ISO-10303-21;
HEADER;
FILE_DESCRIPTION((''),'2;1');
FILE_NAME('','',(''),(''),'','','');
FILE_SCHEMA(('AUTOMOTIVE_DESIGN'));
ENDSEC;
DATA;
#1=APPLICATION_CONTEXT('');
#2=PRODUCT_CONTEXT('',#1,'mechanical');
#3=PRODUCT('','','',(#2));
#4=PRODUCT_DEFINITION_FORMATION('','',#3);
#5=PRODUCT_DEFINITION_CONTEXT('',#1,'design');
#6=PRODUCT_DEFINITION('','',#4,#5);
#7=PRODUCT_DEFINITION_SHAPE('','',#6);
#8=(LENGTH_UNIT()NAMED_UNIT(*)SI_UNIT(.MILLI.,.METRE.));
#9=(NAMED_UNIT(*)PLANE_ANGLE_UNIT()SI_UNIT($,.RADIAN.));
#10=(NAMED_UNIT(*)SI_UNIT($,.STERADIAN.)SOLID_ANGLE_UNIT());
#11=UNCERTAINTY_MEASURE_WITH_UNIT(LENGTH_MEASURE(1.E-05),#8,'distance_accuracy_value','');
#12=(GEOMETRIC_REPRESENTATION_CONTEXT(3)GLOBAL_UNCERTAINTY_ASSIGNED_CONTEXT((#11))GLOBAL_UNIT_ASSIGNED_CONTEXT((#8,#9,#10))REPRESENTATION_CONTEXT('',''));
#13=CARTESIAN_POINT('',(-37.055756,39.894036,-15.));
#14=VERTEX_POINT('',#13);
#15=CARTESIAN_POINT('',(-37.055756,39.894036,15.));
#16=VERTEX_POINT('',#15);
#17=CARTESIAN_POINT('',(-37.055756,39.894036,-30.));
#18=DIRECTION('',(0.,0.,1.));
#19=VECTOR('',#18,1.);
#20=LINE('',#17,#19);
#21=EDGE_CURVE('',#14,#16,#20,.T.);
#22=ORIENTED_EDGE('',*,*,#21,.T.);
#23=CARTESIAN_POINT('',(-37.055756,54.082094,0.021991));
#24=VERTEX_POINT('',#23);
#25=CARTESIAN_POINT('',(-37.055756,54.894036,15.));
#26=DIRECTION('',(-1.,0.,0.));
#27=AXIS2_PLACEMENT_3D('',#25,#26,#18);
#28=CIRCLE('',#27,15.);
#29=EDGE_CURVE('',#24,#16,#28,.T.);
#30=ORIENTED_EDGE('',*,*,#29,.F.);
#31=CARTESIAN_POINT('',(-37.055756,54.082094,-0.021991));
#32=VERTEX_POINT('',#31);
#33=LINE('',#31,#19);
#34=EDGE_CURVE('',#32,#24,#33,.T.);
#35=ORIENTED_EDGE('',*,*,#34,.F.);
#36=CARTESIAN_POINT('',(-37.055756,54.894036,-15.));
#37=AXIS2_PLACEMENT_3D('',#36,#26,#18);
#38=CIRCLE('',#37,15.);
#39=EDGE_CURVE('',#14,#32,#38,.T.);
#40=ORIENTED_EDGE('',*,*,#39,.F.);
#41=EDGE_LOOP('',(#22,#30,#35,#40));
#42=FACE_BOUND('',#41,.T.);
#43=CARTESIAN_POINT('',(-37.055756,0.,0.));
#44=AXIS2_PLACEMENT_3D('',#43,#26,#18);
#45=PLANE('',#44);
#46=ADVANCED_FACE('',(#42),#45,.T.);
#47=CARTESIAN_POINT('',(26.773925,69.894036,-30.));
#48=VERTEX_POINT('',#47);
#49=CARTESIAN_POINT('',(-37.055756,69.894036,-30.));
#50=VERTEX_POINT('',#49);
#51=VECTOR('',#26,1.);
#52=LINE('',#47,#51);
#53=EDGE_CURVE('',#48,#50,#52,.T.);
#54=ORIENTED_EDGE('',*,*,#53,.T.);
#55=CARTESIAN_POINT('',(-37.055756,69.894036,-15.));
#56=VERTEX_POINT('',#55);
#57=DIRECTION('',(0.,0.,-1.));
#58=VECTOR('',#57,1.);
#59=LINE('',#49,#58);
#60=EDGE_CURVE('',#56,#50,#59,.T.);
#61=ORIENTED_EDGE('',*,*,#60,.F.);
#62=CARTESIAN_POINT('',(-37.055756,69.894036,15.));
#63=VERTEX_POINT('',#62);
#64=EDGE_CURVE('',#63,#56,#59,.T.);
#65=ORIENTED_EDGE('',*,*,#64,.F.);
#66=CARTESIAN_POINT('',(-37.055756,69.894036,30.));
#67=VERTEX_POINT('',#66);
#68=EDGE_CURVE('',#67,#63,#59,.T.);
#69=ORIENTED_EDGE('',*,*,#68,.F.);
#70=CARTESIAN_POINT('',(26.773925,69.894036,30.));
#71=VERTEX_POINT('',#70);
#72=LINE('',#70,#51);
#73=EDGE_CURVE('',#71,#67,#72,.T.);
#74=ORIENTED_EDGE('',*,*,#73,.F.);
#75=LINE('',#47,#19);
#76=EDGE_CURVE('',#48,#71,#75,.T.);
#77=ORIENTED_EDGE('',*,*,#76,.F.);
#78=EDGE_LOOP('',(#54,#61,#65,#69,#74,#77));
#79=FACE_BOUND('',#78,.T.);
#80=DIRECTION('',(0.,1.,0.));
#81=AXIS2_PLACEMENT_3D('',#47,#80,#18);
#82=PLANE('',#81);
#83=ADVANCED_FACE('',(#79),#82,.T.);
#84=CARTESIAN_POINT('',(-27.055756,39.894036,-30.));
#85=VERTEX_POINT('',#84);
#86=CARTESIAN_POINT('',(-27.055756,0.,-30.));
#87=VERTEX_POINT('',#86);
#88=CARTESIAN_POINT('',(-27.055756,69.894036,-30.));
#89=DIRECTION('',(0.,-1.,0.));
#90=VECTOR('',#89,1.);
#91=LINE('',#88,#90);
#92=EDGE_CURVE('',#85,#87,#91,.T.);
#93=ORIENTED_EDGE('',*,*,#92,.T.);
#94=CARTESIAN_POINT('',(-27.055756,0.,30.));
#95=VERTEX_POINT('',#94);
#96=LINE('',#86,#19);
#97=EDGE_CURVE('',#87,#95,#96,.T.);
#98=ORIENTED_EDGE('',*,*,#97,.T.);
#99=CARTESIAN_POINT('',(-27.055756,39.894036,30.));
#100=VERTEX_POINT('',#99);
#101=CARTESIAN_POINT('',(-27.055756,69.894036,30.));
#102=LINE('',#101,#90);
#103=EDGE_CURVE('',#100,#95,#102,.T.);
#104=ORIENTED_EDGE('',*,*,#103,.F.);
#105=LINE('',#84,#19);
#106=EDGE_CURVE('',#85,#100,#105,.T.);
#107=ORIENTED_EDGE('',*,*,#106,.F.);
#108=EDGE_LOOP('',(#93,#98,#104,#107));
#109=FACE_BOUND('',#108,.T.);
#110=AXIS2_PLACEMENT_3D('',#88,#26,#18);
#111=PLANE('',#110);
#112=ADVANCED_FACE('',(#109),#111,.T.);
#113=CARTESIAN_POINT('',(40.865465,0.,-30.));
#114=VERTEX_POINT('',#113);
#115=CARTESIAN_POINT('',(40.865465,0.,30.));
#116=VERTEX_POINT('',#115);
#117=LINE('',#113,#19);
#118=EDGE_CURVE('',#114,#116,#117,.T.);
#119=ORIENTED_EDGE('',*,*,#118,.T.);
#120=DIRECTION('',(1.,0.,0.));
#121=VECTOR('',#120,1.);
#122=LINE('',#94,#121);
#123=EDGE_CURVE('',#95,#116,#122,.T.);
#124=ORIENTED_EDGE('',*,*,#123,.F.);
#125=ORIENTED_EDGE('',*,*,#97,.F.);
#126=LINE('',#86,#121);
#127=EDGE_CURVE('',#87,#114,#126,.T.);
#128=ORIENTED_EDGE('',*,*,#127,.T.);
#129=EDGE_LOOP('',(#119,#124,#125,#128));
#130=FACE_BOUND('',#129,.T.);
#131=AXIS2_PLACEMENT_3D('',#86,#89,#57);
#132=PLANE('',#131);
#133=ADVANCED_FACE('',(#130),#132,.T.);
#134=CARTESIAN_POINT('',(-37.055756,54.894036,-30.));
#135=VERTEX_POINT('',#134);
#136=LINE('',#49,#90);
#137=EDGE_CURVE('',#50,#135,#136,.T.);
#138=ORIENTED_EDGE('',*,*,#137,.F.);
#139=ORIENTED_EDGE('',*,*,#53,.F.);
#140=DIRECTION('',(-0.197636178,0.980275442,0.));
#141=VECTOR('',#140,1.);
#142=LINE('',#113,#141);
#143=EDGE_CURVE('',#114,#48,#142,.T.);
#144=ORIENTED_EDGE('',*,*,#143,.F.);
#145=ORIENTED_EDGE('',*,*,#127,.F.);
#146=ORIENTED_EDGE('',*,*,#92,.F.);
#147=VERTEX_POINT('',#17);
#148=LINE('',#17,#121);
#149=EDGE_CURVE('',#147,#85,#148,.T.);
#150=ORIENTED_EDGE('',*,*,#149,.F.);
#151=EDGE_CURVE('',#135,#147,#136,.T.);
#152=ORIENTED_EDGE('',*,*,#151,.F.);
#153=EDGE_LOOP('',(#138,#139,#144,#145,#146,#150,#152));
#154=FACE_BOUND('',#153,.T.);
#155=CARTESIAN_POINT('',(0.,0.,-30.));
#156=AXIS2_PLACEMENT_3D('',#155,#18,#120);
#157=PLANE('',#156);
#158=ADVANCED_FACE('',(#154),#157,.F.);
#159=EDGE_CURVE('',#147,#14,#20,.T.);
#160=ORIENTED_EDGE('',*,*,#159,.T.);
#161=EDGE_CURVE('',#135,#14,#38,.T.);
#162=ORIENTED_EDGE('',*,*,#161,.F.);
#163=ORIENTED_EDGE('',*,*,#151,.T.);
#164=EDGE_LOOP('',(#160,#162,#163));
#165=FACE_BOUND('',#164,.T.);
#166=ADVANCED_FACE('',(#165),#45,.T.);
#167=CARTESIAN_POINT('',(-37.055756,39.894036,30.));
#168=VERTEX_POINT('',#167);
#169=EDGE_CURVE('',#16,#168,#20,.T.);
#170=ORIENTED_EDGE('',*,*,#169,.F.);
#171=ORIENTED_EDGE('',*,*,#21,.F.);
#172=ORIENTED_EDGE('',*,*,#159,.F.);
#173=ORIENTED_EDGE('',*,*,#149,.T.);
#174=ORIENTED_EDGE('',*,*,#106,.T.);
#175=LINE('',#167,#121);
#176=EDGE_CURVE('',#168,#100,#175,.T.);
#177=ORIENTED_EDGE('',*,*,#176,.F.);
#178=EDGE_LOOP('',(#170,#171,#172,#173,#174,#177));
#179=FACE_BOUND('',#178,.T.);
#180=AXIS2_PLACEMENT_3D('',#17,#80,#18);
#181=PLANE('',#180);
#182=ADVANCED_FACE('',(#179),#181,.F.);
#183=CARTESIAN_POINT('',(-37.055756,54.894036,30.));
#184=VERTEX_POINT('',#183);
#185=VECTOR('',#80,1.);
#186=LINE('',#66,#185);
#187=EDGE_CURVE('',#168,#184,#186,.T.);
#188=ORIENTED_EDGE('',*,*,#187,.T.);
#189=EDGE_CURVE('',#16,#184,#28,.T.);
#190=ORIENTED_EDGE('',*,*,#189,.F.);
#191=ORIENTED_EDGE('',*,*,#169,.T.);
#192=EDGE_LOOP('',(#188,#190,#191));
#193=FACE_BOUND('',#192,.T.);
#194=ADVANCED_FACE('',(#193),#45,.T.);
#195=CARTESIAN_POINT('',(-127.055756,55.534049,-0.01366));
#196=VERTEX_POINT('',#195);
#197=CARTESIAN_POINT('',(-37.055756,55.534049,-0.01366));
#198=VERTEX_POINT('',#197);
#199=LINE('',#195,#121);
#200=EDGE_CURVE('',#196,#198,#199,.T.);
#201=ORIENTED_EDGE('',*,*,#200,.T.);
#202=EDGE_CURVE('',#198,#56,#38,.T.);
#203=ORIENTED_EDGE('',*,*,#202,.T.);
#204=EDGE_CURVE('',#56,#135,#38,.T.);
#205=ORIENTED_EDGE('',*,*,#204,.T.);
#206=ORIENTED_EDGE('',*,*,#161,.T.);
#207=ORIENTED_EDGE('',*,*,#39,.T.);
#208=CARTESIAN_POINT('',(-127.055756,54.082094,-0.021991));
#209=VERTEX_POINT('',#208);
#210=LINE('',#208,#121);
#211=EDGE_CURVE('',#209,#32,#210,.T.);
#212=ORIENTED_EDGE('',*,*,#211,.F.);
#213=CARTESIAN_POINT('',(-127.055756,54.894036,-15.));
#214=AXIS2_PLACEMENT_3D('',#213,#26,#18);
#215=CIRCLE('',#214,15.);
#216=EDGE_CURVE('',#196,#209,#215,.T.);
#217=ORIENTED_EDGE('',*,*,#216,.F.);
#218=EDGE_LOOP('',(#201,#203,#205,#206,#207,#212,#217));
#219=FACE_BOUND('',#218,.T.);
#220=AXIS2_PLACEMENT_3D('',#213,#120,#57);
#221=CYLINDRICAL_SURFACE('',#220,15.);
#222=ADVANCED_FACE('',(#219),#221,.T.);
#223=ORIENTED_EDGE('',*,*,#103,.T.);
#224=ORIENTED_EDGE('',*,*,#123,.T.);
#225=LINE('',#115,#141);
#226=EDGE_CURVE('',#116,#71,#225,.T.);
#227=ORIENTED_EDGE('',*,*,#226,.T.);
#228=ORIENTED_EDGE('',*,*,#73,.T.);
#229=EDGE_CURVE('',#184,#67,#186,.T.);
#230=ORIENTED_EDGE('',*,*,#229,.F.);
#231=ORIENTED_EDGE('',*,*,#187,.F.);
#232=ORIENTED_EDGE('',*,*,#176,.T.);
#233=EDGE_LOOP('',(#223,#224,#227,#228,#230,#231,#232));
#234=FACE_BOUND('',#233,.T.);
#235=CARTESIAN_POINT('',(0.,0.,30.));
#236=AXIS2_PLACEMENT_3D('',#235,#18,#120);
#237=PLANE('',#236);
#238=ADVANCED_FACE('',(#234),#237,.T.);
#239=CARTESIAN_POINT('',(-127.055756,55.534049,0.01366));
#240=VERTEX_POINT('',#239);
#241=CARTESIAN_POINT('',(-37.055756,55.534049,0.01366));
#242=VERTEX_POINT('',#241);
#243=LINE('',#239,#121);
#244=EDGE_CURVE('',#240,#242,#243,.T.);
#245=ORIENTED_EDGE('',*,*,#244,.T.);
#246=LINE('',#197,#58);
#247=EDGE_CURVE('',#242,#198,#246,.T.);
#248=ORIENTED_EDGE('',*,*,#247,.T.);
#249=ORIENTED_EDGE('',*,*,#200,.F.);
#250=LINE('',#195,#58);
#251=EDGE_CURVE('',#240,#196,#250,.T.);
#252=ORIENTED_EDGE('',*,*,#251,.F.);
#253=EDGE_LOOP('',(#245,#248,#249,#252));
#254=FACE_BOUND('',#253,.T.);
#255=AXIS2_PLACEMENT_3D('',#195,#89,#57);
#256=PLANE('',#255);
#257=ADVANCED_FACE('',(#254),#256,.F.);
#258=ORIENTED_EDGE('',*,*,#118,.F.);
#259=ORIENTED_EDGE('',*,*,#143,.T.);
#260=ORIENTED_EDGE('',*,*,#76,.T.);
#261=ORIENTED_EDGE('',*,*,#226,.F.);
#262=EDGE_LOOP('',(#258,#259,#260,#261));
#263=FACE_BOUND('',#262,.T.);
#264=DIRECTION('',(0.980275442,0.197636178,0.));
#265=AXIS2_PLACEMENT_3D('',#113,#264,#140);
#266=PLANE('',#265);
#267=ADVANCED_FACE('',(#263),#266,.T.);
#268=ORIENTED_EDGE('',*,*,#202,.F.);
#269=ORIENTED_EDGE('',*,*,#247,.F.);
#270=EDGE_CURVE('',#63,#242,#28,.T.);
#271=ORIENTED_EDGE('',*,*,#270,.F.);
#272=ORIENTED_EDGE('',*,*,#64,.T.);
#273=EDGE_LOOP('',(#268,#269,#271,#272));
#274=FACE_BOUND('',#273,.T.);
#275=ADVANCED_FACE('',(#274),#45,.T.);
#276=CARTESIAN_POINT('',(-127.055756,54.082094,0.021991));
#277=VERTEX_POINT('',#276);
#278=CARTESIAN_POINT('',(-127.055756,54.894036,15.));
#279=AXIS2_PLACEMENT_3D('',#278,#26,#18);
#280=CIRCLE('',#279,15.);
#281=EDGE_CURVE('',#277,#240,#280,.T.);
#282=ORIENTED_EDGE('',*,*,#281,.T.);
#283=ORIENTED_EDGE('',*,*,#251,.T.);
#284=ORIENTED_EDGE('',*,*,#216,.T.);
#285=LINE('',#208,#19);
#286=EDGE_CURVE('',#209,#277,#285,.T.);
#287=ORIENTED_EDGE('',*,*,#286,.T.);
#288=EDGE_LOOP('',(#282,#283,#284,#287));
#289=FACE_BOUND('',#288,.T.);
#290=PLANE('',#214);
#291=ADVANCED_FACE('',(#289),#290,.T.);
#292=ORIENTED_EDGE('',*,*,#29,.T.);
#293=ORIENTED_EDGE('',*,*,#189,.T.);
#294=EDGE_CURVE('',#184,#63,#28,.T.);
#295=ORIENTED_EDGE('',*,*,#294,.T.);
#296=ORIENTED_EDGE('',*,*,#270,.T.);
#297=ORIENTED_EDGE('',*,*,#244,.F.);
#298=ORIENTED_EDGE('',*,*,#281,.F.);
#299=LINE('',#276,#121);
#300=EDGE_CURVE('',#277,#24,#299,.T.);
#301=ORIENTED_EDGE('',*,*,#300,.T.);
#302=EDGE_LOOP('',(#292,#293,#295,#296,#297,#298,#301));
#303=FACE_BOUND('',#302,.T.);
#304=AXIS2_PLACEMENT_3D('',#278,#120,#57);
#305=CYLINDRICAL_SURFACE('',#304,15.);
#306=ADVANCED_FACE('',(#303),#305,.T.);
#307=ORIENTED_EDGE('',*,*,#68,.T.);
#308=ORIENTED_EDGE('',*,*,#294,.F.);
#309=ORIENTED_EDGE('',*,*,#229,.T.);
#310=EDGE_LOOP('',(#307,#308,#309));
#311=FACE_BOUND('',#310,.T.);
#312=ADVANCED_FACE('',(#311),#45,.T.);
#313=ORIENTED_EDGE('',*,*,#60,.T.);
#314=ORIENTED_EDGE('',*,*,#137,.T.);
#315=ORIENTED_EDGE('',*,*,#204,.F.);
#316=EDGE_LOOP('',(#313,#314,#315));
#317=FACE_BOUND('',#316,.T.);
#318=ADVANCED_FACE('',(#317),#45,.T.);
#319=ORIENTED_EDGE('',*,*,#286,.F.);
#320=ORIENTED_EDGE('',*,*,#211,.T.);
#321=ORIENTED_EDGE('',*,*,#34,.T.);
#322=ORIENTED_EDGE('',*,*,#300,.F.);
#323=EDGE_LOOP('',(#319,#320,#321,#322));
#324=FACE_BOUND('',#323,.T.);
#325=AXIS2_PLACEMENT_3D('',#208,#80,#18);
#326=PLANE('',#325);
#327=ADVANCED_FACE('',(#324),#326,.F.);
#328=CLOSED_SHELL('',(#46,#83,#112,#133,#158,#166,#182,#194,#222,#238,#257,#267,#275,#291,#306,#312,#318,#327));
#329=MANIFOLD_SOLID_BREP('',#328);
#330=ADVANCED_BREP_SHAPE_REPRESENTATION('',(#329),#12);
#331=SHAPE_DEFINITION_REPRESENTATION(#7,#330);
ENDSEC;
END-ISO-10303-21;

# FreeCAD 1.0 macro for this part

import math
import FreeCAD as App
import Part
import Sketcher
from FreeCAD import Vector
Q = App.Units.Quantity

doc = App.newDocument("Part")
body = doc.addObject("PartDesign::Body", "Body")

sketch1 = doc.addObject("Sketcher::SketchObject", "Sketch")
body.addObject(sketch1)
sketch1.AttachmentSupport = (doc.XY_Plane, [""])
sketch1.MapMode = "FlatFace"
sketch1.addGeometry(Part.LineSegment(Vector(-27, 0, 0), Vector(41, 0, 0)), False)
sketch1.addGeometry(Part.LineSegment(Vector(41, 0, 0), Vector(27, 70, 0)), False)
sketch1.addGeometry(Part.LineSegment(Vector(27, 70, 0), Vector(-27, 70, 0)), False)
sketch1.addGeometry(Part.LineSegment(Vector(-27, 70, 0), Vector(-27, 0, 0)), False)
sketch1.addConstraint(Sketcher.Constraint("Coincident", 0, 2, 1, 1))
sketch1.addConstraint(Sketcher.Constraint("Coincident", 1, 2, 2, 1))
sketch1.addConstraint(Sketcher.Constraint("Coincident", 2, 2, 3, 1))
sketch1.addConstraint(Sketcher.Constraint("Coincident", 3, 2, 0, 1))
sketch1.addConstraint(Sketcher.Constraint("Horizontal", 0))
sketch1.addConstraint(Sketcher.Constraint("Horizontal", 2))
sketch1.addConstraint(Sketcher.Constraint("Vertical", 3))
sketch1.addConstraint(Sketcher.Constraint("PointOnObject", 0, 2, -1))
sketch1.addConstraint(Sketcher.Constraint("DistanceX", 0, 1, 0, 2, Q("67.921221 mm")))
sketch1.addConstraint(Sketcher.Constraint("DistanceX", 2, 2, 2, 1, Q("53.829681 mm")))
sketch1.addConstraint(Sketcher.Constraint("DistanceY", 3, 2, 3, 1, Q("69.894036 mm")))
sketch1.addConstraint(Sketcher.Constraint("DistanceX", -1, 1, 0, 2, Q("40.865465 mm")))
pad1 = doc.addObject("PartDesign::Pad", "Pad")
body.addObject(pad1)
pad1.Profile = sketch1
pad1.Type = "TwoLengths"
pad1.Length = 30
pad1.Length2 = 30

sketch2 = doc.addObject("Sketcher::SketchObject", "Sketch001")
body.addObject(sketch2)
sketch2.AttachmentSupport = (doc.YZ_Plane, [""])
sketch2.MapMode = "FlatFace"
sketch2.AttachmentOffset = App.Placement(Vector(0, 0, -27.055756), App.Rotation())
sketch2.addGeometry(Part.LineSegment(Vector(55.534049, 0.01366, 0), Vector(55.534049, -0.01366, 0)), False)
sketch2.addGeometry(Part.ArcOfCircle(Part.Circle(Vector(54.894036, -15, 0), Vector(0, 0, 1), 15), math.radians(93.102906), math.radians(447.554588)), False)
sketch2.addGeometry(Part.LineSegment(Vector(54.082094, -0.021991, 0), Vector(54.082094, 0.021991, 0)), False)
sketch2.addGeometry(Part.ArcOfCircle(Part.Circle(Vector(54.894036, 15, 0), Vector(0, 0, 1), 15), math.radians(-87.554588), math.radians(266.897094)), False)
sketch2.addConstraint(Sketcher.Constraint("Coincident", 0, 2, 1, 2))
sketch2.addConstraint(Sketcher.Constraint("Coincident", 1, 1, 2, 1))
sketch2.addConstraint(Sketcher.Constraint("Coincident", 2, 2, 3, 2))
sketch2.addConstraint(Sketcher.Constraint("Coincident", 3, 1, 0, 1))
sketch2.addConstraint(Sketcher.Constraint("Vertical", 0))
sketch2.addConstraint(Sketcher.Constraint("Vertical", 2))
sketch2.addConstraint(Sketcher.Constraint("Equal", 1, 3))
sketch2.addConstraint(Sketcher.Constraint("Symmetric", 1, 3, 3, 3, -1))
sketch2.addConstraint(Sketcher.Constraint("Radius", 1, Q("15 mm")))
sketch2.addConstraint(Sketcher.Constraint("DistanceY", 1, 3, -1, 1, Q("15 mm")))
sketch2.addConstraint(Sketcher.Constraint("DistanceY", 0, 2, 0, 1, Q("0.02732 mm")))
sketch2.addConstraint(Sketcher.Constraint("DistanceY", 2, 1, 2, 2, Q("0.043982 mm")))
sketch2.addConstraint(Sketcher.Constraint("DistanceX", -1, 1, 0, 2, Q("55.534049 mm")))
pad2 = doc.addObject("PartDesign::Pad", "Pad001")
body.addObject(pad2)
pad2.Profile = sketch2
pad2.Length = 100
pad2.Reversed = True

sketch3 = doc.addObject("Sketcher::SketchObject", "Sketch002")
body.addObject(sketch3)
sketch3.AttachmentSupport = (doc.YZ_Plane, [""])
sketch3.MapMode = "FlatFace"
sketch3.AttachmentOffset = App.Placement(Vector(0, 0, -27.055756), App.Rotation())
sketch3.addGeometry(Part.LineSegment(Vector(70, -30, 0), Vector(40, -30, 0)), False)
sketch3.addGeometry(Part.LineSegment(Vector(40, -30, 0), Vector(40, 30, 0)), False)
sketch3.addGeometry(Part.LineSegment(Vector(40, 30, 0), Vector(70, 30, 0)), False)
sketch3.addGeometry(Part.LineSegment(Vector(70, 30, 0), Vector(70, -30, 0)), False)
sketch3.addConstraint(Sketcher.Constraint("Coincident", 0, 2, 1, 1))
sketch3.addConstraint(Sketcher.Constraint("Coincident", 1, 2, 2, 1))
sketch3.addConstraint(Sketcher.Constraint("Coincident", 2, 2, 3, 1))
sketch3.addConstraint(Sketcher.Constraint("Coincident", 3, 2, 0, 1))
sketch3.addConstraint(Sketcher.Constraint("Horizontal", 0))
sketch3.addConstraint(Sketcher.Constraint("Vertical", 1))
sketch3.addConstraint(Sketcher.Constraint("Horizontal", 2))
sketch3.addConstraint(Sketcher.Constraint("Vertical", 3))
sketch3.addConstraint(Sketcher.Constraint("DistanceX", 0, 2, 0, 1, Q("30 mm")))
sketch3.addConstraint(Sketcher.Constraint("DistanceY", 1, 1, 1, 2, Q("60 mm")))
sketch3.addConstraint(Sketcher.Constraint("DistanceY", 0, 2, -1, 1, Q("30 mm")))
sketch3.addConstraint(Sketcher.Constraint("DistanceX", -1, 1, 0, 2, Q("39.894036 mm")))
pad3 = doc.addObject("PartDesign::Pad", "Pad002")
body.addObject(pad3)
pad3.Profile = sketch3
pad3.Length = 10
pad3.Reversed = True

doc.recompute()
